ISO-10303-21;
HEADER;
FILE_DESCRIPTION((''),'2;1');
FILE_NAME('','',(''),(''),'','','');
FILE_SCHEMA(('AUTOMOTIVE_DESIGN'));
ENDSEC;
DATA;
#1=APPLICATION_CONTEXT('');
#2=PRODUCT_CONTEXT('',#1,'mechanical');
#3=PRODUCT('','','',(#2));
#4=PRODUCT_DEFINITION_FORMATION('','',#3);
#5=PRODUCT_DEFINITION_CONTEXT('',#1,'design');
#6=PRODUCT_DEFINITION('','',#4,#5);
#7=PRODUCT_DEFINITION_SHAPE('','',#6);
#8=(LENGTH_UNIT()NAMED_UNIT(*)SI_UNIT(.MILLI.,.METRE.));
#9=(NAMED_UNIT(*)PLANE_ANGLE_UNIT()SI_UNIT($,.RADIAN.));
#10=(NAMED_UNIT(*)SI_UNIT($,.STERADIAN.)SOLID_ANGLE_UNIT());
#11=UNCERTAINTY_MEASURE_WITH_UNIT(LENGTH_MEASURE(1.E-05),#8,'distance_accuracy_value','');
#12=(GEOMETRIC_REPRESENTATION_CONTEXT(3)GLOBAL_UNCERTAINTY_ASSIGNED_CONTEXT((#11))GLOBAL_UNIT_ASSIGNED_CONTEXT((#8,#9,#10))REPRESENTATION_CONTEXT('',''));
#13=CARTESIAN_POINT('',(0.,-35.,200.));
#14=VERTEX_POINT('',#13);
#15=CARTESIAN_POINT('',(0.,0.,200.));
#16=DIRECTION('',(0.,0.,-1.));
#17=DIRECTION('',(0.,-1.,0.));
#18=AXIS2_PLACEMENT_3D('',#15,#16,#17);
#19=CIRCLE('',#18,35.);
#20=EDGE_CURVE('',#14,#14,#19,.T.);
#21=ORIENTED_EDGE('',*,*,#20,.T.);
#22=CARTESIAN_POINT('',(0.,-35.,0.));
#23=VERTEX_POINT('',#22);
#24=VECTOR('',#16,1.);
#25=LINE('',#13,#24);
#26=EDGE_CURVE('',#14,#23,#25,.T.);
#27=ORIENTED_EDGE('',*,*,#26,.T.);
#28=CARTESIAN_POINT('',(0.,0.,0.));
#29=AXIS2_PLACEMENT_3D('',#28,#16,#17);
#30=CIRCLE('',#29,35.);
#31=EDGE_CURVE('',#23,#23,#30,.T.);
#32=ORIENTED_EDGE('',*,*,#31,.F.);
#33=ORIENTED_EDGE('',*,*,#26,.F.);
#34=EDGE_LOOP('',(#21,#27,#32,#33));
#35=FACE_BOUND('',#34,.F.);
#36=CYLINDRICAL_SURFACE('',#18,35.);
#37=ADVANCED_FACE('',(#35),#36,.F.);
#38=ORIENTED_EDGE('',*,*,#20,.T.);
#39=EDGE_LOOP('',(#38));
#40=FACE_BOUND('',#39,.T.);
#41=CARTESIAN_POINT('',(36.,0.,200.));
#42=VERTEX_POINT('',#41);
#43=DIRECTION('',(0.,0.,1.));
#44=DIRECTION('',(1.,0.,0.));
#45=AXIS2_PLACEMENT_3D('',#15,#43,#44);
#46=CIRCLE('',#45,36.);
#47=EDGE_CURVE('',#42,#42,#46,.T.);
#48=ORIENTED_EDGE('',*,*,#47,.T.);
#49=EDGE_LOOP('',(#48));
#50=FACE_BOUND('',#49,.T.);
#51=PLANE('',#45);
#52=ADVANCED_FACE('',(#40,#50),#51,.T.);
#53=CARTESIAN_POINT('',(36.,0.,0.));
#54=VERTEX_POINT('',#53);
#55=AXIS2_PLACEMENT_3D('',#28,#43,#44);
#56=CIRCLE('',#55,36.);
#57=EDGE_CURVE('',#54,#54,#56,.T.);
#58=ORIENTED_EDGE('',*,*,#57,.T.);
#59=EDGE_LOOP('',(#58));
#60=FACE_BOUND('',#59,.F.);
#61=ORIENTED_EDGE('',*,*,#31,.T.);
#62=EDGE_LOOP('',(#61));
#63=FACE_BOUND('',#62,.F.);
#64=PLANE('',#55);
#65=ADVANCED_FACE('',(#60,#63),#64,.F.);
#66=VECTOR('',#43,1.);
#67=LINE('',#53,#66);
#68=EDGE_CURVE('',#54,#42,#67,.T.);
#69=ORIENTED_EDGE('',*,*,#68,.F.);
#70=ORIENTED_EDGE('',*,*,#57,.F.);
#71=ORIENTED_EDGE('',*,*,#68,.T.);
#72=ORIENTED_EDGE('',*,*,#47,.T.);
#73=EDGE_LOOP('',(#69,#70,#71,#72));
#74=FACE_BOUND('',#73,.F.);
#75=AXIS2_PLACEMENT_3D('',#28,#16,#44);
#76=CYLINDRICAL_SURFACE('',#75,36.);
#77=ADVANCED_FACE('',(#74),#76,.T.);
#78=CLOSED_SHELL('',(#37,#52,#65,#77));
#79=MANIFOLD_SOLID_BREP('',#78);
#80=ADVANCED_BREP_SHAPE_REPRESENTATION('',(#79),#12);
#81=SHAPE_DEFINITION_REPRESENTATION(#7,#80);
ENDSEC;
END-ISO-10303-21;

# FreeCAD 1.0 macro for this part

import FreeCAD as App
import Part
import Sketcher

V = App.Vector
Q = App.Units.Quantity

doc = App.newDocument("Part")
body = doc.addObject("PartDesign::Body", "Body")

# Sketch on XY plane
sketch1 = body.newObject("Sketcher::SketchObject", "Sketch")
sketch1.AttachmentSupport = (doc.getObject("XY_Plane"), [""])
sketch1.MapMode = "FlatFace"
sketch1.addGeometry(Part.Circle(V(0, 0, 0), V(0, 0, 1), 36), False)
sketch1.addConstraint([
    Sketcher.Constraint("Coincident", 0, 3, -1, 1),
    Sketcher.Constraint("Diameter", 0, Q("72 mm")),
])
pad1 = body.newObject("PartDesign::Pad", "Pad")
pad1.Profile = sketch1
pad1.Length = 200

# Sketch on XY plane
sketch2 = body.newObject("Sketcher::SketchObject", "Sketch001")
sketch2.AttachmentSupport = (doc.getObject("XY_Plane"), [""])
sketch2.MapMode = "FlatFace"
sketch2.AttachmentOffset = App.Placement(V(0, 0, 200), App.Rotation())
sketch2.addGeometry(Part.Circle(V(0, 0, 0), V(0, 0, 1), 35), False)
sketch2.addConstraint([
    Sketcher.Constraint("Coincident", 0, 3, -1, 1),
    Sketcher.Constraint("Diameter", 0, Q("70 mm")),
])
doc.recompute()
hole = body.newObject("PartDesign::Hole", "Hole")
hole.Profile = sketch2
hole.ThreadType = "None"
hole.Diameter = 70
hole.DepthType = "ThroughAll"

doc.recompute()
